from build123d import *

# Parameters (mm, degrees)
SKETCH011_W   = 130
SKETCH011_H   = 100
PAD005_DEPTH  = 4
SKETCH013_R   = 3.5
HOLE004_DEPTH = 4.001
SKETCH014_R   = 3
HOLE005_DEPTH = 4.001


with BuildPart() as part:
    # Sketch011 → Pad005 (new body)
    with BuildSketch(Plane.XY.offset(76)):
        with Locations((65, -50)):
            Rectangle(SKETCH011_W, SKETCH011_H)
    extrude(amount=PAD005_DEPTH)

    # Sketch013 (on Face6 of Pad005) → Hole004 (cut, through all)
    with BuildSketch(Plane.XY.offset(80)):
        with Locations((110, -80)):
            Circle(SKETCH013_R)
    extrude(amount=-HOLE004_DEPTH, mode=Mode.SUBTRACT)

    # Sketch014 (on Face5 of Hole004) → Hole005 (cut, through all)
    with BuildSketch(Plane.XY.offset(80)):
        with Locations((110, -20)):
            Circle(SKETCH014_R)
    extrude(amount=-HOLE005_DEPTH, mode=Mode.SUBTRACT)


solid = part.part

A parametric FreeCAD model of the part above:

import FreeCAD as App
import Part
import Sketcher

doc = App.newDocument("Part")
body = doc.addObject("PartDesign::Body", "Body")

# Sketch on XY plane
sketch1 = doc.addObject("Sketcher::SketchObject", "Sketch")
body.addObject(sketch1)
sketch1.AttachmentSupport = (doc.XY_Plane, [""])
sketch1.MapMode = "FlatFace"
sketch1.AttachmentOffset = App.Placement(App.Vector(0, 0, 76), App.Rotation())
sketch1.addGeometry([
    Part.LineSegment(App.Vector(0, 0, 0), App.Vector(0, -100, 0)),
    Part.LineSegment(App.Vector(0, -100, 0), App.Vector(130, -100, 0)),
    Part.LineSegment(App.Vector(130, -100, 0), App.Vector(130, 0, 0)),
    Part.LineSegment(App.Vector(130, 0, 0), App.Vector(0, 0, 0)),
], False)
sketch1.addConstraint([
    Sketcher.Constraint("Coincident", 0, 2, 1, 1),
    Sketcher.Constraint("Coincident", 1, 2, 2, 1),
    Sketcher.Constraint("Coincident", 2, 2, 3, 1),
    Sketcher.Constraint("Coincident", 3, 2, 0, 1),
    Sketcher.Constraint("Vertical", 0),
    Sketcher.Constraint("Horizontal", 1),
    Sketcher.Constraint("Vertical", 2),
    Sketcher.Constraint("Horizontal", 3),
    Sketcher.Constraint("Coincident", 3, 2, -1, 1),
    Sketcher.Constraint("DistanceX", 1, 1, 1, 2, 130.0),
    Sketcher.Constraint("DistanceY", 0, 2, 0, 1, 100.0),
])
pad1 = doc.addObject("PartDesign::Pad", "Pad")
body.addObject(pad1)
pad1.Profile = sketch1
pad1.Length = 4

# Sketch on XY plane
sketch2 = doc.addObject("Sketcher::SketchObject", "Sketch001")
body.addObject(sketch2)
sketch2.AttachmentSupport = (doc.XY_Plane, [""])
sketch2.MapMode = "FlatFace"
sketch2.AttachmentOffset = App.Placement(App.Vector(0, 0, 80), App.Rotation())
sketch2.addGeometry(Part.Circle(App.Vector(110, -80, 0), App.Vector(0, 0, 1), 3.5), False)
sketch2.addConstraint([
    Sketcher.Constraint("Diameter", 0, 7.0),
    Sketcher.Constraint("DistanceX", -1, 1, 0, 3, 110.0),
    Sketcher.Constraint("DistanceY", 0, 3, -1, 1, 80.0),
])
pocket1 = doc.addObject("PartDesign::Pocket", "Pocket")
body.addObject(pocket1)
pocket1.Profile = sketch2
pocket1.Type = "ThroughAll"

# Sketch on XY plane
sketch3 = doc.addObject("Sketcher::SketchObject", "Sketch002")
body.addObject(sketch3)
sketch3.AttachmentSupport = (doc.XY_Plane, [""])
sketch3.MapMode = "FlatFace"
sketch3.AttachmentOffset = App.Placement(App.Vector(0, 0, 80), App.Rotation())
sketch3.addGeometry(Part.Circle(App.Vector(110, -20, 0), App.Vector(0, 0, 1), 3), False)
sketch3.addConstraint([
    Sketcher.Constraint("Diameter", 0, 6.0),
    Sketcher.Constraint("DistanceX", -1, 1, 0, 3, 110.0),
    Sketcher.Constraint("DistanceY", 0, 3, -1, 1, 20.0),
])
pocket2 = doc.addObject("PartDesign::Pocket", "Pocket001")
body.addObject(pocket2)
pocket2.Profile = sketch3
pocket2.Type = "ThroughAll"

doc.recompute()
